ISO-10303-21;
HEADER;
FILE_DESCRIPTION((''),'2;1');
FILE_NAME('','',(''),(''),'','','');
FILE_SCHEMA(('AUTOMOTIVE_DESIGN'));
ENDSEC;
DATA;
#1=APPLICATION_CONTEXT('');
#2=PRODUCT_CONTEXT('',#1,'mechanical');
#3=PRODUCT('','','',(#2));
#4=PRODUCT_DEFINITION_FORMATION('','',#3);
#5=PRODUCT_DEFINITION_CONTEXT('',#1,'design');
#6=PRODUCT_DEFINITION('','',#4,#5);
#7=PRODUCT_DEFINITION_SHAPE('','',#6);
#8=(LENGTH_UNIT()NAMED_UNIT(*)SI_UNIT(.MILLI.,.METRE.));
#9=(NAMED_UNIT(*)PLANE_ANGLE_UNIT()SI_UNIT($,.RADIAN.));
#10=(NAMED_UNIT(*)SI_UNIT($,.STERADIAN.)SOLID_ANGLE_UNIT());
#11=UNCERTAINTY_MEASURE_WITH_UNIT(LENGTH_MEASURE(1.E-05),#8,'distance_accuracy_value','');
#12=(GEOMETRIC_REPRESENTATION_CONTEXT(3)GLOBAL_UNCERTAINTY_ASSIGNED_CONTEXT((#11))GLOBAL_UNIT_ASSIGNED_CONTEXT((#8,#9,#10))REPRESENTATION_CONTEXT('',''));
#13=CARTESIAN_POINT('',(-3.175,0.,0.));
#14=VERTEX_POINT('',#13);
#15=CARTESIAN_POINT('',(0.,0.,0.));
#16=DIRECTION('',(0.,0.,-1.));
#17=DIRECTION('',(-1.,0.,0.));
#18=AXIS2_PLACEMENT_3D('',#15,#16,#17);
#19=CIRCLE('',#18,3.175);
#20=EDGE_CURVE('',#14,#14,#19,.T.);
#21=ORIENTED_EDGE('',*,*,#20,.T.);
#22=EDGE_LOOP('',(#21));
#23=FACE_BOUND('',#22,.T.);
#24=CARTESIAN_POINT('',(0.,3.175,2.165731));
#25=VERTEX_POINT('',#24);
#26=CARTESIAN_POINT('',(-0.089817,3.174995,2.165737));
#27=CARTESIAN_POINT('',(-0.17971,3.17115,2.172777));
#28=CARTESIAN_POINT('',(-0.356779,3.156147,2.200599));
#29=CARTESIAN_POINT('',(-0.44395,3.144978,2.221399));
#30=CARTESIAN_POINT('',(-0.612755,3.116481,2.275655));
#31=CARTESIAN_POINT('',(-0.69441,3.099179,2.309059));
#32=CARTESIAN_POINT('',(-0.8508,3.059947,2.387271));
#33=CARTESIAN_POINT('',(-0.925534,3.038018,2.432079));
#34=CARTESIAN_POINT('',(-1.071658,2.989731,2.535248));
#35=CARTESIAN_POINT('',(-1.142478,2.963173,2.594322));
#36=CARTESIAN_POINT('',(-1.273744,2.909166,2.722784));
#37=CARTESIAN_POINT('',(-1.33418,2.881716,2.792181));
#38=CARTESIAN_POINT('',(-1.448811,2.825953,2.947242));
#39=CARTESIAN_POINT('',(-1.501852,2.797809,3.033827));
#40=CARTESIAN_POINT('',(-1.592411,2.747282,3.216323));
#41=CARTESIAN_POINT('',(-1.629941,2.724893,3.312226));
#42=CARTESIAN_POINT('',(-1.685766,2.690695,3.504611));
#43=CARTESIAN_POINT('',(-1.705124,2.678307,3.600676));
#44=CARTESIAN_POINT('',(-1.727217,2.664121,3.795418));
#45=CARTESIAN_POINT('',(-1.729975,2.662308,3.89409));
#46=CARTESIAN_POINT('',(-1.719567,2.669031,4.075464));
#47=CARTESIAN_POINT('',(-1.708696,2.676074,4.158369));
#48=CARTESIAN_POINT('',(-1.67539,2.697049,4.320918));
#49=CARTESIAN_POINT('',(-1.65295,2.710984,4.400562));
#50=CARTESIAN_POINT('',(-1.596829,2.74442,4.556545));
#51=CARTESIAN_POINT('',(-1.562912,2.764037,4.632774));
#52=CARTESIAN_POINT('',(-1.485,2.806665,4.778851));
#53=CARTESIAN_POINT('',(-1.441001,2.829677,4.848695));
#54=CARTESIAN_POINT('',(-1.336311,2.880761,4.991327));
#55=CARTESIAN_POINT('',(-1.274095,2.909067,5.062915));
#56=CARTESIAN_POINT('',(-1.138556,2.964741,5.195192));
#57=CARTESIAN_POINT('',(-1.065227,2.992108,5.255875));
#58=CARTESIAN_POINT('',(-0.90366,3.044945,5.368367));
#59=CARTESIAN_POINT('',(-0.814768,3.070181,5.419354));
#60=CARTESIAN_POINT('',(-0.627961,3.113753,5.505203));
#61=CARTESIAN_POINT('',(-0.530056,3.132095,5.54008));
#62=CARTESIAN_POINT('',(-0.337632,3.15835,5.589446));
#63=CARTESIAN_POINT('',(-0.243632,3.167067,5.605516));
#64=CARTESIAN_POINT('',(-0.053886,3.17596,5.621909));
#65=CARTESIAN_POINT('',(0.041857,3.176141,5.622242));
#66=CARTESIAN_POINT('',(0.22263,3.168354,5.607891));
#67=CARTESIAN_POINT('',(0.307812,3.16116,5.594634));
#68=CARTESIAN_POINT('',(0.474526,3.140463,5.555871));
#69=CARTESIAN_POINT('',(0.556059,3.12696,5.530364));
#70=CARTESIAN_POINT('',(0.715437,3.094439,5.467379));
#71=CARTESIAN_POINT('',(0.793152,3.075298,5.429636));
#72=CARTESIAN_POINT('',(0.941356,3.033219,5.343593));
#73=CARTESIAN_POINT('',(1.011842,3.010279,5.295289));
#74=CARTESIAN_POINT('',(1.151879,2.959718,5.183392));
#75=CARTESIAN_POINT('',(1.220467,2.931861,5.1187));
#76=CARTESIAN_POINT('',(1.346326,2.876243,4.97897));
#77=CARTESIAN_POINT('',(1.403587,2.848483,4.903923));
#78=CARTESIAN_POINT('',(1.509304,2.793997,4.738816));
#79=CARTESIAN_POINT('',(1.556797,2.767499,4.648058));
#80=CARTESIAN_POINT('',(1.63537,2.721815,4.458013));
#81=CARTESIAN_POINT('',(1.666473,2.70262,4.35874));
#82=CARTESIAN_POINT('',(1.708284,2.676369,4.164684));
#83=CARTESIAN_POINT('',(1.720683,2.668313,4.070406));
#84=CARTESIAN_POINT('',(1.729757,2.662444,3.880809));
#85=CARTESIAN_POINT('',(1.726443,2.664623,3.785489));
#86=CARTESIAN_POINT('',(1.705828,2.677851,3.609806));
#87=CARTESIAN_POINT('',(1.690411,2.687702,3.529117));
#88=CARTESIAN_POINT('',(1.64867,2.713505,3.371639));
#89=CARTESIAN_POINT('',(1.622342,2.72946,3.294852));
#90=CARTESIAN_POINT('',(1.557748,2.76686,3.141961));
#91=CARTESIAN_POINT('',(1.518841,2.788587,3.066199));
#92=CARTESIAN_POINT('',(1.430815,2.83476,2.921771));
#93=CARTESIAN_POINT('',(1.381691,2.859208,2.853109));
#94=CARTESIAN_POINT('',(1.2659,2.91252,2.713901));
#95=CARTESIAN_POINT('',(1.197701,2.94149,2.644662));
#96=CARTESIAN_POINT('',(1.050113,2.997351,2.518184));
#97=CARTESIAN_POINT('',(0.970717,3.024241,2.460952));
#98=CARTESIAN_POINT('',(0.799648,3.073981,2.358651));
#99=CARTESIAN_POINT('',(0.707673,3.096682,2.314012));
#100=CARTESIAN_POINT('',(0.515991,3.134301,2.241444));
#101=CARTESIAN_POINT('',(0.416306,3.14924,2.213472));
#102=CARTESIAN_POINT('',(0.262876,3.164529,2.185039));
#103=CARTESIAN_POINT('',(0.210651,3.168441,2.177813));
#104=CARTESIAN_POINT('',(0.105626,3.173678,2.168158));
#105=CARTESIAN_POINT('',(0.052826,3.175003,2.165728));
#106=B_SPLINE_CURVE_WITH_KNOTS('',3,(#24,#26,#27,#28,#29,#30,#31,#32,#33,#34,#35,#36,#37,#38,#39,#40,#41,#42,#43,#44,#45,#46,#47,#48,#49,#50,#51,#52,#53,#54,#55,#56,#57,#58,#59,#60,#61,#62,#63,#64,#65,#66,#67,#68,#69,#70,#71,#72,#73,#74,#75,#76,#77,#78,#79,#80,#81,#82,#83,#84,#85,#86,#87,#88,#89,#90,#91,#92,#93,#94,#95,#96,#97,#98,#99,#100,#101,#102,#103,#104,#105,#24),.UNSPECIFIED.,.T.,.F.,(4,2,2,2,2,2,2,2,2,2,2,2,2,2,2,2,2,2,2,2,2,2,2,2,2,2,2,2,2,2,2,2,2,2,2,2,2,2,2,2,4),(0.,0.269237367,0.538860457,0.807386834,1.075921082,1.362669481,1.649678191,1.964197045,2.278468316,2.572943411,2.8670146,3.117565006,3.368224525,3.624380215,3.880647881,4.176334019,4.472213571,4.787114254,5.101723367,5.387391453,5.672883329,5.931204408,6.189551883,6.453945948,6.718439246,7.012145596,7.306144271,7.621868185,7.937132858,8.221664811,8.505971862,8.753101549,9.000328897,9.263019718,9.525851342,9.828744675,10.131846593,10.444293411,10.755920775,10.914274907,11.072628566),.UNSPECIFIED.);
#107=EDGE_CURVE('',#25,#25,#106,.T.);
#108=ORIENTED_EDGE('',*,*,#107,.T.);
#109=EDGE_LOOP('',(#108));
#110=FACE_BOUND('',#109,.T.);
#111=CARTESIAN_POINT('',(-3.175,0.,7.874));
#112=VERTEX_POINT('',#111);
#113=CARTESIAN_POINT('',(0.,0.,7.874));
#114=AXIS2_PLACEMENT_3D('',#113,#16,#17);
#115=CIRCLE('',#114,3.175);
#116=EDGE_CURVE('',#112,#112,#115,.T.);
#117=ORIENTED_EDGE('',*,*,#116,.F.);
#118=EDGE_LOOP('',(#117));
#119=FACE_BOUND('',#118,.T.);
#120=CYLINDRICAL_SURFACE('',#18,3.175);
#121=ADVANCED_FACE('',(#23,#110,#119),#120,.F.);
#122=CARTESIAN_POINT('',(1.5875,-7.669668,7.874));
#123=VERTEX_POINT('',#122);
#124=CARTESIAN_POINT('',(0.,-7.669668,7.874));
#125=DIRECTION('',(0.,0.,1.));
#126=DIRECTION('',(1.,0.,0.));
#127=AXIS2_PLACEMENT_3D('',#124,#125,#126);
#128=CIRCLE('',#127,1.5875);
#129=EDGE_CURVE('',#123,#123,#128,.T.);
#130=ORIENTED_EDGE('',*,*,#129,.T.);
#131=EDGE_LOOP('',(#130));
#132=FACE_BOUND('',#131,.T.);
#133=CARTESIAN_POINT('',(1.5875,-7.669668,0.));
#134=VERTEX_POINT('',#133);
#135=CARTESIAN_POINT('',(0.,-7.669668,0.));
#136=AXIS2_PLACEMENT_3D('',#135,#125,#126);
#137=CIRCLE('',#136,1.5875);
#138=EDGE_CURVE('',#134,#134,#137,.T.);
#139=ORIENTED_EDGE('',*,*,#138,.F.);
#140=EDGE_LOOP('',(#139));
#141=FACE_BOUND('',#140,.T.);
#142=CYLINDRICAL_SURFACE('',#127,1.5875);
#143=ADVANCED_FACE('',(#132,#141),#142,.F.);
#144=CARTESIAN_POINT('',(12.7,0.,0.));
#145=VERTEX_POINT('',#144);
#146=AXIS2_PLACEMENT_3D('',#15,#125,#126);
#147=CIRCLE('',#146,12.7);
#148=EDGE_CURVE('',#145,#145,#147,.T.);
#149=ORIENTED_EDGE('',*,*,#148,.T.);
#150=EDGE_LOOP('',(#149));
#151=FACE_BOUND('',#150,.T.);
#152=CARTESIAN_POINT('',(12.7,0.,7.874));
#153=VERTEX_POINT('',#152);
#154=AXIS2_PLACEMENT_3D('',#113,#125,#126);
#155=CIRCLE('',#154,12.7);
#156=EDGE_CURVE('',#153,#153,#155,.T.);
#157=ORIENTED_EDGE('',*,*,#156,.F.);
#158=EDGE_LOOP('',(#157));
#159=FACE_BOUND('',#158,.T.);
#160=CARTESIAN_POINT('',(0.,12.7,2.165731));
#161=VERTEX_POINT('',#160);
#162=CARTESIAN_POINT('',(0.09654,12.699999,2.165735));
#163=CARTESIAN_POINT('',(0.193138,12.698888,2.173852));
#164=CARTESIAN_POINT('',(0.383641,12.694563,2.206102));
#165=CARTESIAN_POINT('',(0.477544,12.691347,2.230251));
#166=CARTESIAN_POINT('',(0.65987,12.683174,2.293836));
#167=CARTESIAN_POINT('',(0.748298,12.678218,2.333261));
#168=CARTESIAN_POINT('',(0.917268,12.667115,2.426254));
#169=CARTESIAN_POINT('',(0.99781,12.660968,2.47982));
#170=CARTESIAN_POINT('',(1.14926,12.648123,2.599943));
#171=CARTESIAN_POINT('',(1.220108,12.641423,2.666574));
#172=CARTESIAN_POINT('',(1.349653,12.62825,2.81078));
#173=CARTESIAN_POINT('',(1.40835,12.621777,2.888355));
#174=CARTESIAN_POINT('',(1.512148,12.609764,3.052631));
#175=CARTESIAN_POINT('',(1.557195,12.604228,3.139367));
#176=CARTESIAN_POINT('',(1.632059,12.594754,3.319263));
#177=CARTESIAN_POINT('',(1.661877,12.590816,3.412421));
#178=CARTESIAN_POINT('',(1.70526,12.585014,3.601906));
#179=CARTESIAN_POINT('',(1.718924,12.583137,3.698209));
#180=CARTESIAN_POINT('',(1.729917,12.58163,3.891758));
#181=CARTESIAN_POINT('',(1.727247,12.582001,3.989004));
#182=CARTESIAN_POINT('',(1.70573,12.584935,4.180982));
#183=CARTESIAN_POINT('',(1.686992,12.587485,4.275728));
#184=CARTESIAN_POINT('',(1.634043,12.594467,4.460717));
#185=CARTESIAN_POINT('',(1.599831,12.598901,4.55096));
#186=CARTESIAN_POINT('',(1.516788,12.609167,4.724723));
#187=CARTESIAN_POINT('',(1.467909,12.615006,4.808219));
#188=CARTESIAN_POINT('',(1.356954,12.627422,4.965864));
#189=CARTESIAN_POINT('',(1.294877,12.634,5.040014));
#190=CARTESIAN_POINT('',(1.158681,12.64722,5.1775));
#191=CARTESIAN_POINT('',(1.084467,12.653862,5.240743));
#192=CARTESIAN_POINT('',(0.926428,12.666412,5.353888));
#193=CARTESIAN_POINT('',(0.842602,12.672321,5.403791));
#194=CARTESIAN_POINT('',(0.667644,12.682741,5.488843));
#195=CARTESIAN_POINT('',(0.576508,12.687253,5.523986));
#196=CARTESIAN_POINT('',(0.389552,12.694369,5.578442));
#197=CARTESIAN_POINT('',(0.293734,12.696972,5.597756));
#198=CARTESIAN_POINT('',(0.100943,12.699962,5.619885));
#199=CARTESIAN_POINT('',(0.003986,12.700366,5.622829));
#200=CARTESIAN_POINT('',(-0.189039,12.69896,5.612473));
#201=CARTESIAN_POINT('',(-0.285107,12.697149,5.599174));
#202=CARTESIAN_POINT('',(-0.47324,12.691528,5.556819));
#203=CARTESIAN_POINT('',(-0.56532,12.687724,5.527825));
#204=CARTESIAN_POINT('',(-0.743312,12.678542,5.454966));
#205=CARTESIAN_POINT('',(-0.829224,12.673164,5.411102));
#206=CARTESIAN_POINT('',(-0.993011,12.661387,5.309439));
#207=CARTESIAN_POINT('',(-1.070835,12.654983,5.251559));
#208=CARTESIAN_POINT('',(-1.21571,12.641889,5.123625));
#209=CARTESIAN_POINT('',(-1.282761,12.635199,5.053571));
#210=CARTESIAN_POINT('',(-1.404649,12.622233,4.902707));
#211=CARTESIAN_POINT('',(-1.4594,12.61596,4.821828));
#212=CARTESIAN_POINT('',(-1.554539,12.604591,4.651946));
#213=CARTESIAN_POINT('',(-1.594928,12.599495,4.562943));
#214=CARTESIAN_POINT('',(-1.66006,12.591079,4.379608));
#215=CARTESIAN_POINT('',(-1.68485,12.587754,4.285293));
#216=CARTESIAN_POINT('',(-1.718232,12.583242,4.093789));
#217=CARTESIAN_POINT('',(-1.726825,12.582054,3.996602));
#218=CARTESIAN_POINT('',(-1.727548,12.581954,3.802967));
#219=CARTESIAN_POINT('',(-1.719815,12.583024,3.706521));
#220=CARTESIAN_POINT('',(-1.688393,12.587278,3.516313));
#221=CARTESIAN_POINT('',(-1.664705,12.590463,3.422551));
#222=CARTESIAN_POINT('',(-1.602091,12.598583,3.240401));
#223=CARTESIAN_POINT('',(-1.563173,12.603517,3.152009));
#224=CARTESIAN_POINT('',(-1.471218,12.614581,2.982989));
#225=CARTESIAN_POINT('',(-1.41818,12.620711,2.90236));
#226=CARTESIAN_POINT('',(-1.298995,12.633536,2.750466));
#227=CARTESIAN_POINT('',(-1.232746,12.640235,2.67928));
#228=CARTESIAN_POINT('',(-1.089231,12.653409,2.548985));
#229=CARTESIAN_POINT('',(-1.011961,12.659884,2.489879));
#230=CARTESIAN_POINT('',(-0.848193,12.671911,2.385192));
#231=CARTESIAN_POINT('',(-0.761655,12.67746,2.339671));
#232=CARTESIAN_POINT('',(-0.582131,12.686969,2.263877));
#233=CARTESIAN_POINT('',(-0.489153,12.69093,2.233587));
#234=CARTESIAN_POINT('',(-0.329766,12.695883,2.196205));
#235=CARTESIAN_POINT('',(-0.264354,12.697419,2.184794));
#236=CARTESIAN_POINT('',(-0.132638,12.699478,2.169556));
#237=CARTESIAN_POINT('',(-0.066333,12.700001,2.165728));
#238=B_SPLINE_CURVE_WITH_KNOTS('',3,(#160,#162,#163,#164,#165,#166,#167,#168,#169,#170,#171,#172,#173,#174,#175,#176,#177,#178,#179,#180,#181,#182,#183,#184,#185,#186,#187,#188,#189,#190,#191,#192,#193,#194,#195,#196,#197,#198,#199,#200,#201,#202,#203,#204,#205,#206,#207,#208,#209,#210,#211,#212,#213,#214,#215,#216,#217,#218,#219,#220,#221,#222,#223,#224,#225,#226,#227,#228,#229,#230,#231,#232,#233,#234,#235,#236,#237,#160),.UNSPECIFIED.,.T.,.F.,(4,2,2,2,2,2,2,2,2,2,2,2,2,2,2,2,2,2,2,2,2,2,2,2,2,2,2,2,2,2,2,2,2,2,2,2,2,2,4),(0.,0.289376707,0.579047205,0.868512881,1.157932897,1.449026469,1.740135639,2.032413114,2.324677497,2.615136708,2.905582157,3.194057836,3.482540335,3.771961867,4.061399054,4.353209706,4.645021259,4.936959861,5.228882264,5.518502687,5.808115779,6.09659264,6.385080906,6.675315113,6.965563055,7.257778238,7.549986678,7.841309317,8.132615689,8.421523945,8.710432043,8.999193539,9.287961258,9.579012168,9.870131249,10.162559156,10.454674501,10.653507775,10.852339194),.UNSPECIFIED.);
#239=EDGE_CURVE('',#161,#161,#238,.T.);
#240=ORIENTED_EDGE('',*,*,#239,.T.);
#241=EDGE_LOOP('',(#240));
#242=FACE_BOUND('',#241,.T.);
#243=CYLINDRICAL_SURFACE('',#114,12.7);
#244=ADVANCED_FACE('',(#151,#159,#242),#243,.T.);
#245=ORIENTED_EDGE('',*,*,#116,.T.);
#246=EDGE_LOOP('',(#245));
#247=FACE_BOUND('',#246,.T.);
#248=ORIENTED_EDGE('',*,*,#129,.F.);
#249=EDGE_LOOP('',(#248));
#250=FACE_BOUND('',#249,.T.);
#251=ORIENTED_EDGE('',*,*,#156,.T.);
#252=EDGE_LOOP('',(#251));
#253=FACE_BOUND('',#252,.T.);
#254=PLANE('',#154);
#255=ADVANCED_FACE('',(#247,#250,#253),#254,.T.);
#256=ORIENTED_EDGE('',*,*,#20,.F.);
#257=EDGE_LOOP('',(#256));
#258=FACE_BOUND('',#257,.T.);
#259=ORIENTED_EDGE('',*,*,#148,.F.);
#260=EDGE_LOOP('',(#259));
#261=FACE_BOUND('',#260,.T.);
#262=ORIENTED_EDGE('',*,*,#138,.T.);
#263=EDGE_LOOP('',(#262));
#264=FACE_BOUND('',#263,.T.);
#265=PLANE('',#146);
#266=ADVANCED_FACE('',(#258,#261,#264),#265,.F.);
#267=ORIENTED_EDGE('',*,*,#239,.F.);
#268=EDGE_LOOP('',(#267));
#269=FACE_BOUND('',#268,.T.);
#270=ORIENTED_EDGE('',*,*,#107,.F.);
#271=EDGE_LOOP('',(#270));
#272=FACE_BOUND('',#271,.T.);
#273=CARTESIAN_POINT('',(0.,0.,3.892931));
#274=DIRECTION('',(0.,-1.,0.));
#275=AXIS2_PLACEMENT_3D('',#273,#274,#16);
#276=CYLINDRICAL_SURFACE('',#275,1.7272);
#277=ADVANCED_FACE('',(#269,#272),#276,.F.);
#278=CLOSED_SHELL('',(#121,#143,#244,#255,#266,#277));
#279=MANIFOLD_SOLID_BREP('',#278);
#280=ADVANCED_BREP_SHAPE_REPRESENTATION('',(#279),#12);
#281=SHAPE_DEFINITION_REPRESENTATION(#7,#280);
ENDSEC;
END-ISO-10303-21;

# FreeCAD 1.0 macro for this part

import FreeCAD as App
import Part
import Sketcher
from FreeCAD import Vector
Q = App.Units.Quantity

doc = App.newDocument("Part")
body = doc.addObject("PartDesign::Body", "Body")

sketch1 = doc.addObject("Sketcher::SketchObject", "Sketch")
body.addObject(sketch1)
sketch1.AttachmentSupport = (doc.XY_Plane, [""])
sketch1.MapMode = "FlatFace"
sketch1.addGeometry(Part.Circle(Vector(0, 0, 0), Vector(0, 0, 1), 13), False)
sketch1.addConstraint(Sketcher.Constraint("Coincident", 0, 3, -1, 1))
sketch1.addConstraint(Sketcher.Constraint("Diameter", 0, Q("1 in")))
pad1 = doc.addObject("PartDesign::Pad", "Pad")
body.addObject(pad1)
pad1.Profile = sketch1
pad1.Length = Q("0.31 in")

sketch2 = doc.addObject("Sketcher::SketchObject", "Sketch001")
body.addObject(sketch2)
sketch2.AttachmentSupport = (doc.XY_Plane, [""])
sketch2.MapMode = "FlatFace"
sketch2.addGeometry(Part.Circle(Vector(0, 0, 0), Vector(0, 0, 1), 3.2), False)
sketch2.addConstraint(Sketcher.Constraint("Coincident", 0, 3, -1, 1))
sketch2.addConstraint(Sketcher.Constraint("Diameter", 0, Q("0.25 in")))
doc.recompute()
hole = doc.addObject("PartDesign::Hole", "Hole")
body.addObject(hole)
hole.Profile = sketch2
hole.ThreadType = "None"
hole.Diameter = Q("0.25 in")
hole.DepthType = "ThroughAll"
hole.Reversed = True

sketch3 = doc.addObject("Sketcher::SketchObject", "Sketch002")
body.addObject(sketch3)
sketch3.AttachmentSupport = (doc.XY_Plane, [""])
sketch3.MapMode = "FlatFace"
sketch3.AttachmentOffset = App.Placement(Vector(0, 0, 0.31 * 25.4), App.Rotation())
sketch3.addGeometry(Part.Circle(Vector(0, -7.7, 0), Vector(0, 0, 1), 1.6), False)
sketch3.addConstraint(Sketcher.Constraint("PointOnObject", 0, 3, -2))
sketch3.addConstraint(Sketcher.Constraint("Diameter", 0, Q("0.125 in")))
sketch3.addConstraint(Sketcher.Constraint("DistanceY", 0, 3, -1, 1, 7.669668))
doc.recompute()
hole2 = doc.addObject("PartDesign::Hole", "Hole001")
body.addObject(hole2)
hole2.Profile = sketch3
hole2.ThreadType = "None"
hole2.Diameter = Q("0.125 in")
hole2.DepthType = "ThroughAll"

sketch4 = doc.addObject("Sketcher::SketchObject", "Sketch003")
body.addObject(sketch4)
sketch4.AttachmentSupport = (doc.YZ_Plane, [""])
sketch4.MapMode = "FlatFace"
sketch4.addGeometry(Part.LineSegment(Vector(14, 3.9, 0), Vector(0, 3.9, 0)), False)
sketch4.addGeometry(Part.LineSegment(Vector(0, 3.9, 0), Vector(0, 2.2, 0)), False)
sketch4.addGeometry(Part.LineSegment(Vector(0, 2.2, 0), Vector(12.9, 2.2, 0)), False)
sketch4.addGeometry(Part.LineSegment(Vector(12.9, 2.2, 0), Vector(14, 3.9, 0)), False)
sketch4.addGeometry(Part.LineSegment(Vector(0, 3.9, 0), Vector(14, 3.9, 0)), True)
sketch4.addConstraint(Sketcher.Constraint("Coincident", 0, 2, 1, 1))
sketch4.addConstraint(Sketcher.Constraint("Coincident", 1, 2, 2, 1))
sketch4.addConstraint(Sketcher.Constraint("Coincident", 2, 2, 3, 1))
sketch4.addConstraint(Sketcher.Constraint("Coincident", 3, 2, 0, 1))
sketch4.addConstraint(Sketcher.Constraint("Horizontal", 0))
sketch4.addConstraint(Sketcher.Constraint("Vertical", 1))
sketch4.addConstraint(Sketcher.Constraint("Horizontal", 2))
sketch4.addConstraint(Sketcher.Constraint("Horizontal", 4))
sketch4.addConstraint(Sketcher.Constraint("Coincident", 4, 1, 0, 2))
sketch4.addConstraint(Sketcher.Constraint("PointOnObject", 0, 2, -2))
sketch4.addConstraint(Sketcher.Constraint("Equal", 0, 4))
sketch4.addConstraint(Sketcher.Constraint("Angle", 3, Q("59 deg")))
sketch4.addConstraint(Sketcher.Constraint("DistanceX", 0, 2, 0, 1, Q("0.55 in")))
sketch4.addConstraint(Sketcher.Constraint("DistanceY", 1, 2, 1, 1, Q("0.068 in")))
sketch4.addConstraint(Sketcher.Constraint("DistanceY", -1, 1, 0, 2, 3.892931))
groove = doc.addObject("PartDesign::Groove", "Groove")
body.addObject(groove)
groove.Profile = sketch4
groove.ReferenceAxis = (sketch4, ["Axis0"])
groove.Angle = 360

doc.recompute()
